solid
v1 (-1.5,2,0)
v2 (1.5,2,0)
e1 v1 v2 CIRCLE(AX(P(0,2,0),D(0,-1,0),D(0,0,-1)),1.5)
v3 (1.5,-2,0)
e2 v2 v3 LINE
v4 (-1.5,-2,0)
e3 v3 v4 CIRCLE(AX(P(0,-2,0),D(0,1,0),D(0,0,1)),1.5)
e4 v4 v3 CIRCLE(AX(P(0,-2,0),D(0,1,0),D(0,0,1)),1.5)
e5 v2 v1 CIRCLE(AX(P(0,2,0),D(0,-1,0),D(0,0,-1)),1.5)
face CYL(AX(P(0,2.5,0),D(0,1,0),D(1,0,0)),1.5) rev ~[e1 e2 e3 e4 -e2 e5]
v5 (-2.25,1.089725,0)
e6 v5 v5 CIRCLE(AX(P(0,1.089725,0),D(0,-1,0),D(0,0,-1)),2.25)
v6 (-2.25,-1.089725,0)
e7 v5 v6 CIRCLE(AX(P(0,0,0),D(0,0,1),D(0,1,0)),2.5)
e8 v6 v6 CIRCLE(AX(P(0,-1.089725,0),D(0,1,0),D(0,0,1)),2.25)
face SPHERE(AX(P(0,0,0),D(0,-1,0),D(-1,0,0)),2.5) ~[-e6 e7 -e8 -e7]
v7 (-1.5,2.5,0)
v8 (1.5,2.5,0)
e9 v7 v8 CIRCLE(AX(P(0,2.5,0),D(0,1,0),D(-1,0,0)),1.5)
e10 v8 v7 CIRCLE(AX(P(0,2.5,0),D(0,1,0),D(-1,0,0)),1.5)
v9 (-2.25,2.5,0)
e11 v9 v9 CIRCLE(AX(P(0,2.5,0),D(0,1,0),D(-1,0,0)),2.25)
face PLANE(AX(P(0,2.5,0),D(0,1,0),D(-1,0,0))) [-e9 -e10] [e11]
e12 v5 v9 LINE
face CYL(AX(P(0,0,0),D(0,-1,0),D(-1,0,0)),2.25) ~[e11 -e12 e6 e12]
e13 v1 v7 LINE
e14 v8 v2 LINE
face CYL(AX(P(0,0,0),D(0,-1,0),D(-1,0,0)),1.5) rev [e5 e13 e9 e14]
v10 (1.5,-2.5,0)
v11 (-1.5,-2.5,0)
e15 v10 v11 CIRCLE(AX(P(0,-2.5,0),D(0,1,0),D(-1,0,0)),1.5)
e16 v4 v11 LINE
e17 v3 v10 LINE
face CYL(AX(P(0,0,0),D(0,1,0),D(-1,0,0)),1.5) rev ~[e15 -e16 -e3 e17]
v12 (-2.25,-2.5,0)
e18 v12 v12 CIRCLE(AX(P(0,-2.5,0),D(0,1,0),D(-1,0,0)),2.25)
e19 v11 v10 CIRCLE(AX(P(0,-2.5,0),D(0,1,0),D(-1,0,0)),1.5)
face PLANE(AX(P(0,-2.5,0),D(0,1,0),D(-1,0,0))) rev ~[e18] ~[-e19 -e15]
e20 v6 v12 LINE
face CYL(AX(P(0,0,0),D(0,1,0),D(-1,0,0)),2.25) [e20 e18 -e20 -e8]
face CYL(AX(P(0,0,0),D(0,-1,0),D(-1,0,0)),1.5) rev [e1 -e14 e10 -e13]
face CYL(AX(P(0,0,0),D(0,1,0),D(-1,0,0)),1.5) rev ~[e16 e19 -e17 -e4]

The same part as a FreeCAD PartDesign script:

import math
import FreeCAD as App
import Part
import Sketcher
from FreeCAD import Vector

doc = App.newDocument("Part")
body = doc.addObject("PartDesign::Body", "Body")

sketch1 = doc.addObject("Sketcher::SketchObject", "Sketch")
body.addObject(sketch1)
sketch1.AttachmentSupport = (doc.XY_Plane, [""])
sketch1.MapMode = "FlatFace"
sketch1.addGeometry(Part.LineSegment(Vector(0, -2.5, 0), Vector(0, 2.5, 0)), False)
sketch1.addGeometry(Part.ArcOfCircle(Part.Circle(Vector(0, 0, 0), Vector(0, 0, 1), 2.5), math.radians(90), math.radians(270)), False)
sketch1.addConstraint(Sketcher.Constraint("Coincident", 0, 1, 1, 2))
sketch1.addConstraint(Sketcher.Constraint("Coincident", 1, 1, 0, 2))
sketch1.addConstraint(Sketcher.Constraint("Vertical", 0))
sketch1.addConstraint(Sketcher.Constraint("Coincident", 1, 3, -1, 1))
sketch1.addConstraint(Sketcher.Constraint("PointOnObject", 0, 1, -2))
sketch1.addConstraint(Sketcher.Constraint("Radius", 1, 2.5))
revolution = doc.addObject("PartDesign::Revolution", "Revolution")
body.addObject(revolution)
revolution.Profile = sketch1
revolution.ReferenceAxis = (sketch1, ["V_Axis"])
revolution.Angle = 360

sketch2 = doc.addObject("Sketcher::SketchObject", "Sketch001")
body.addObject(sketch2)
sketch2.AttachmentSupport = (doc.XZ_Plane, [""])
sketch2.MapMode = "FlatFace"
sketch2.addGeometry(Part.Circle(Vector(0, 0, 0), Vector(0, 0, 1), 2.25), False)
sketch2.addGeometry(Part.Circle(Vector(0, 0, 0), Vector(0, 0, 1), 1.5), False)
sketch2.addConstraint(Sketcher.Constraint("Coincident", 0, 3, -1, 1))
sketch2.addConstraint(Sketcher.Constraint("Coincident", 1, 3, -1, 1))
sketch2.addConstraint(Sketcher.Constraint("Diameter", 1, 3.0))
sketch2.addConstraint(Sketcher.Constraint("Diameter", 0, 4.5))
pad1 = doc.addObject("PartDesign::Pad", "Pad")
body.addObject(pad1)
pad1.Profile = sketch2
pad1.Length = 5
pad1.Midplane = True

sketch3 = doc.addObject("Sketcher::SketchObject", "Sketch002")
body.addObject(sketch3)
sketch3.AttachmentSupport = (doc.XZ_Plane, [""])
sketch3.MapMode = "FlatFace"
sketch3.AttachmentOffset = App.Placement(Vector(0, 0, -2.5), App.Rotation())
sketch3.addGeometry(Part.Circle(Vector(0, 0, 0), Vector(0, 0, 1), 1.5), False)
sketch3.addConstraint(Sketcher.Constraint("Coincident", 0, 3, -1, 1))
sketch3.addConstraint(Sketcher.Constraint("Diameter", 0, 3.0))
pocket1 = doc.addObject("PartDesign::Pocket", "Pocket")
body.addObject(pocket1)
pocket1.Profile = sketch3
pocket1.Type = "ThroughAll"
pocket1.Reversed = True

doc.recompute()
